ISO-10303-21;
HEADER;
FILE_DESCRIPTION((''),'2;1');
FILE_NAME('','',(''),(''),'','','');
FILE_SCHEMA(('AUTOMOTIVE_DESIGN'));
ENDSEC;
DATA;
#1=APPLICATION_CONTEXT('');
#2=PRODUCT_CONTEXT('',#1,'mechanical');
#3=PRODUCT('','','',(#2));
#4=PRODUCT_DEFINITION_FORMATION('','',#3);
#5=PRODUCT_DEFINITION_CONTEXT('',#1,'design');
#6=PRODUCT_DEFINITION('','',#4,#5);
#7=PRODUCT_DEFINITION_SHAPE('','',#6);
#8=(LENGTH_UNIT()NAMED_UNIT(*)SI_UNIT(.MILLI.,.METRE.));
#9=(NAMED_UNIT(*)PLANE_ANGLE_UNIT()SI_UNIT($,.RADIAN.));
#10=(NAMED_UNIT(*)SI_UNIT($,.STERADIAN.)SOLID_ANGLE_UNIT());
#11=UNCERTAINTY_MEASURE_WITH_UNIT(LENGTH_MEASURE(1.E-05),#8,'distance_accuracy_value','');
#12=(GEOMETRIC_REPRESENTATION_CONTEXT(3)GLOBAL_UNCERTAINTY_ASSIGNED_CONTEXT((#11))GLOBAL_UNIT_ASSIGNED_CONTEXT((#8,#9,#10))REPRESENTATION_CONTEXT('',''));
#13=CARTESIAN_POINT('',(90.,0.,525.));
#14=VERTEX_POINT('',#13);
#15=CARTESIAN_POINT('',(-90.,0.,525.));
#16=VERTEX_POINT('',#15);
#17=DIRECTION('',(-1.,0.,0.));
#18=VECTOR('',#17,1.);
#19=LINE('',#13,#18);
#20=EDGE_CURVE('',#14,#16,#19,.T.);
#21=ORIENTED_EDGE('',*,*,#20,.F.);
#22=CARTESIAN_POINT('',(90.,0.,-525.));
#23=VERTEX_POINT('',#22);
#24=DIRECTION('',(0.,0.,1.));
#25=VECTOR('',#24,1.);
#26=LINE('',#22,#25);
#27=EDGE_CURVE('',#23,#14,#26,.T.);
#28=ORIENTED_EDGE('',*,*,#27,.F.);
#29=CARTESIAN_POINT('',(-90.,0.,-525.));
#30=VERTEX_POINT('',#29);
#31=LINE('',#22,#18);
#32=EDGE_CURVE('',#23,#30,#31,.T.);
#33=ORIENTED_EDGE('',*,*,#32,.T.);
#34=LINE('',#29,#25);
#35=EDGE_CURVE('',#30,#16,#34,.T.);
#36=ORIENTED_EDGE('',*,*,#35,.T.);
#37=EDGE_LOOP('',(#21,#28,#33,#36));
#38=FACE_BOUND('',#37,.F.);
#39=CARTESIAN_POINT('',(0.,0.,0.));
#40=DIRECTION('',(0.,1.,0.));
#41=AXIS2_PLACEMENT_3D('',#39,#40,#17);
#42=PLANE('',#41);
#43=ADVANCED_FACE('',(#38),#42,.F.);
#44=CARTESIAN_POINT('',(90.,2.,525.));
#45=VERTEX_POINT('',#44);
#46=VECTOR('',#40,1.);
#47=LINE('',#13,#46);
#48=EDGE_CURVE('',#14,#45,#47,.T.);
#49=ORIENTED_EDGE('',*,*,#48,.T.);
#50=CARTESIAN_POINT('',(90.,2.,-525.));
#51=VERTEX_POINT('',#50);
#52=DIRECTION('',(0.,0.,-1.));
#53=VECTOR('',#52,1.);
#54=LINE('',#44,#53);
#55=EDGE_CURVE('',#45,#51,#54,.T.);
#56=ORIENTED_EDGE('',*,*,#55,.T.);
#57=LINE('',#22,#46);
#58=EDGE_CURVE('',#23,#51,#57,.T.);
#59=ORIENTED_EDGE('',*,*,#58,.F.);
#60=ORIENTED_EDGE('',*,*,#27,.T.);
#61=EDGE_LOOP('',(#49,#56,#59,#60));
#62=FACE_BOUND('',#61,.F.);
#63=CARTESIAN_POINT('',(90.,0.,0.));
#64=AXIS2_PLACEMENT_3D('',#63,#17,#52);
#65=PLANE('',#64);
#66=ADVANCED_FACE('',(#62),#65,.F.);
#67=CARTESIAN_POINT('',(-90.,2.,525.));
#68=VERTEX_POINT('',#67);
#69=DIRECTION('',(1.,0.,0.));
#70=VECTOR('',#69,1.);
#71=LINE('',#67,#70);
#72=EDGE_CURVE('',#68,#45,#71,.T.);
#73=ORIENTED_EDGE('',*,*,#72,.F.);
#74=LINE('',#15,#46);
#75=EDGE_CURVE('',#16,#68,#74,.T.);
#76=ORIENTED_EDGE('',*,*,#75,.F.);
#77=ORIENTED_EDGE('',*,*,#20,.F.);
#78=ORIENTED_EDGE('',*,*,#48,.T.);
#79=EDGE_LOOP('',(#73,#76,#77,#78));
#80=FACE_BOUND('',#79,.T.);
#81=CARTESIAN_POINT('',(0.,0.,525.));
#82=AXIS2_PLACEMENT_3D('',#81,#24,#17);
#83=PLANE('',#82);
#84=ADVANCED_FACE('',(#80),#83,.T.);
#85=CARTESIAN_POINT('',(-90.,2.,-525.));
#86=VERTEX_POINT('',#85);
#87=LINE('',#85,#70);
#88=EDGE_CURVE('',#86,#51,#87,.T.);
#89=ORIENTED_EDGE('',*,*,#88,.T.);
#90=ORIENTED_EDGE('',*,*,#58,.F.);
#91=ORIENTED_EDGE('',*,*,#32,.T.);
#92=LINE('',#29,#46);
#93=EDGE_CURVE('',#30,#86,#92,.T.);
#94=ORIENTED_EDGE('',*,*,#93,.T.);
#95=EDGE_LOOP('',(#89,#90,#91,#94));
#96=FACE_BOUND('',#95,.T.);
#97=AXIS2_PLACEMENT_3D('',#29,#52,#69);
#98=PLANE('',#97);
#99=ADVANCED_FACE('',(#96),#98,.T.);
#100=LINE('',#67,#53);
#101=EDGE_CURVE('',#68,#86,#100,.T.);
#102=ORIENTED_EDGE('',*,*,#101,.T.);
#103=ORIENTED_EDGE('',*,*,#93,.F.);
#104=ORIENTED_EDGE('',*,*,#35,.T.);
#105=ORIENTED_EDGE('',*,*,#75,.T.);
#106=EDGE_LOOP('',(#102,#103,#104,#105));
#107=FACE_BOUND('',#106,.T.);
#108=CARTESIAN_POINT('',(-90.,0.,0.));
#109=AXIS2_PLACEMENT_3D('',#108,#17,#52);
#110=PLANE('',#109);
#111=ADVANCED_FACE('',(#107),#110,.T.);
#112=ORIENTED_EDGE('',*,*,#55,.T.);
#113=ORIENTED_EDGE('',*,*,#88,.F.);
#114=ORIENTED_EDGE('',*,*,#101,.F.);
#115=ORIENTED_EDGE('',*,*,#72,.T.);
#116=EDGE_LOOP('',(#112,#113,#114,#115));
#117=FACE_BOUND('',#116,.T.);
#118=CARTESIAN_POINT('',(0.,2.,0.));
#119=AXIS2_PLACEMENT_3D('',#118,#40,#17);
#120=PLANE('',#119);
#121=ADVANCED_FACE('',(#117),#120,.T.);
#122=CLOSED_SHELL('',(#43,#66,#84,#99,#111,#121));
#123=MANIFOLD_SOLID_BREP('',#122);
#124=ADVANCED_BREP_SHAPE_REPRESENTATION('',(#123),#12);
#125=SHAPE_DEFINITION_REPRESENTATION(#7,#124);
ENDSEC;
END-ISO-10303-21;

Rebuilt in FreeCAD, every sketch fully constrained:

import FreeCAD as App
import Part
import Sketcher

V = App.Vector
Q = App.Units.Quantity


def add_polygon(sketch, points):
    """Adds a closed chain of lines whose ends are joined by coincident constraints."""
    first, n = sketch.GeometryCount, len(points)
    for a, b in zip(points, points[1:] + points[:1]):
        sketch.addGeometry(Part.LineSegment(App.Vector(*a, 0), App.Vector(*b, 0)), False)
    for i in range(n):
        sketch.addConstraint(Sketcher.Constraint("Coincident", first + i, 2, first + (i + 1) % n, 1))

doc = App.newDocument("Part")
body = doc.addObject("PartDesign::Body", "Body")

sketch1 = body.newObject("Sketcher::SketchObject", "Sketch")
sketch1.AttachmentSupport = (doc.getObject("XZ_Plane"), [""])
sketch1.MapMode = "FlatFace"
add_polygon(sketch1, [(-90, -525), (-90, 525), (90, 525), (90, -525)])
sketch1.addConstraint([
    Sketcher.Constraint("Vertical", 0),
    Sketcher.Constraint("Horizontal", 1),
    Sketcher.Constraint("Vertical", 2),
    Sketcher.Constraint("Horizontal", 3),
    Sketcher.Constraint("Symmetric", 0, 2, 2, 2, -1, 1),
    Sketcher.Constraint("DistanceX", 1, 1, 1, 2, Q("180 mm")),
    Sketcher.Constraint("DistanceY", 0, 1, 0, 2, Q("1050 mm")),
])
pad1 = body.newObject("PartDesign::Pad", "Pad")
pad1.Profile = sketch1
pad1.Length = 2
pad1.Reversed = True

doc.recompute()
